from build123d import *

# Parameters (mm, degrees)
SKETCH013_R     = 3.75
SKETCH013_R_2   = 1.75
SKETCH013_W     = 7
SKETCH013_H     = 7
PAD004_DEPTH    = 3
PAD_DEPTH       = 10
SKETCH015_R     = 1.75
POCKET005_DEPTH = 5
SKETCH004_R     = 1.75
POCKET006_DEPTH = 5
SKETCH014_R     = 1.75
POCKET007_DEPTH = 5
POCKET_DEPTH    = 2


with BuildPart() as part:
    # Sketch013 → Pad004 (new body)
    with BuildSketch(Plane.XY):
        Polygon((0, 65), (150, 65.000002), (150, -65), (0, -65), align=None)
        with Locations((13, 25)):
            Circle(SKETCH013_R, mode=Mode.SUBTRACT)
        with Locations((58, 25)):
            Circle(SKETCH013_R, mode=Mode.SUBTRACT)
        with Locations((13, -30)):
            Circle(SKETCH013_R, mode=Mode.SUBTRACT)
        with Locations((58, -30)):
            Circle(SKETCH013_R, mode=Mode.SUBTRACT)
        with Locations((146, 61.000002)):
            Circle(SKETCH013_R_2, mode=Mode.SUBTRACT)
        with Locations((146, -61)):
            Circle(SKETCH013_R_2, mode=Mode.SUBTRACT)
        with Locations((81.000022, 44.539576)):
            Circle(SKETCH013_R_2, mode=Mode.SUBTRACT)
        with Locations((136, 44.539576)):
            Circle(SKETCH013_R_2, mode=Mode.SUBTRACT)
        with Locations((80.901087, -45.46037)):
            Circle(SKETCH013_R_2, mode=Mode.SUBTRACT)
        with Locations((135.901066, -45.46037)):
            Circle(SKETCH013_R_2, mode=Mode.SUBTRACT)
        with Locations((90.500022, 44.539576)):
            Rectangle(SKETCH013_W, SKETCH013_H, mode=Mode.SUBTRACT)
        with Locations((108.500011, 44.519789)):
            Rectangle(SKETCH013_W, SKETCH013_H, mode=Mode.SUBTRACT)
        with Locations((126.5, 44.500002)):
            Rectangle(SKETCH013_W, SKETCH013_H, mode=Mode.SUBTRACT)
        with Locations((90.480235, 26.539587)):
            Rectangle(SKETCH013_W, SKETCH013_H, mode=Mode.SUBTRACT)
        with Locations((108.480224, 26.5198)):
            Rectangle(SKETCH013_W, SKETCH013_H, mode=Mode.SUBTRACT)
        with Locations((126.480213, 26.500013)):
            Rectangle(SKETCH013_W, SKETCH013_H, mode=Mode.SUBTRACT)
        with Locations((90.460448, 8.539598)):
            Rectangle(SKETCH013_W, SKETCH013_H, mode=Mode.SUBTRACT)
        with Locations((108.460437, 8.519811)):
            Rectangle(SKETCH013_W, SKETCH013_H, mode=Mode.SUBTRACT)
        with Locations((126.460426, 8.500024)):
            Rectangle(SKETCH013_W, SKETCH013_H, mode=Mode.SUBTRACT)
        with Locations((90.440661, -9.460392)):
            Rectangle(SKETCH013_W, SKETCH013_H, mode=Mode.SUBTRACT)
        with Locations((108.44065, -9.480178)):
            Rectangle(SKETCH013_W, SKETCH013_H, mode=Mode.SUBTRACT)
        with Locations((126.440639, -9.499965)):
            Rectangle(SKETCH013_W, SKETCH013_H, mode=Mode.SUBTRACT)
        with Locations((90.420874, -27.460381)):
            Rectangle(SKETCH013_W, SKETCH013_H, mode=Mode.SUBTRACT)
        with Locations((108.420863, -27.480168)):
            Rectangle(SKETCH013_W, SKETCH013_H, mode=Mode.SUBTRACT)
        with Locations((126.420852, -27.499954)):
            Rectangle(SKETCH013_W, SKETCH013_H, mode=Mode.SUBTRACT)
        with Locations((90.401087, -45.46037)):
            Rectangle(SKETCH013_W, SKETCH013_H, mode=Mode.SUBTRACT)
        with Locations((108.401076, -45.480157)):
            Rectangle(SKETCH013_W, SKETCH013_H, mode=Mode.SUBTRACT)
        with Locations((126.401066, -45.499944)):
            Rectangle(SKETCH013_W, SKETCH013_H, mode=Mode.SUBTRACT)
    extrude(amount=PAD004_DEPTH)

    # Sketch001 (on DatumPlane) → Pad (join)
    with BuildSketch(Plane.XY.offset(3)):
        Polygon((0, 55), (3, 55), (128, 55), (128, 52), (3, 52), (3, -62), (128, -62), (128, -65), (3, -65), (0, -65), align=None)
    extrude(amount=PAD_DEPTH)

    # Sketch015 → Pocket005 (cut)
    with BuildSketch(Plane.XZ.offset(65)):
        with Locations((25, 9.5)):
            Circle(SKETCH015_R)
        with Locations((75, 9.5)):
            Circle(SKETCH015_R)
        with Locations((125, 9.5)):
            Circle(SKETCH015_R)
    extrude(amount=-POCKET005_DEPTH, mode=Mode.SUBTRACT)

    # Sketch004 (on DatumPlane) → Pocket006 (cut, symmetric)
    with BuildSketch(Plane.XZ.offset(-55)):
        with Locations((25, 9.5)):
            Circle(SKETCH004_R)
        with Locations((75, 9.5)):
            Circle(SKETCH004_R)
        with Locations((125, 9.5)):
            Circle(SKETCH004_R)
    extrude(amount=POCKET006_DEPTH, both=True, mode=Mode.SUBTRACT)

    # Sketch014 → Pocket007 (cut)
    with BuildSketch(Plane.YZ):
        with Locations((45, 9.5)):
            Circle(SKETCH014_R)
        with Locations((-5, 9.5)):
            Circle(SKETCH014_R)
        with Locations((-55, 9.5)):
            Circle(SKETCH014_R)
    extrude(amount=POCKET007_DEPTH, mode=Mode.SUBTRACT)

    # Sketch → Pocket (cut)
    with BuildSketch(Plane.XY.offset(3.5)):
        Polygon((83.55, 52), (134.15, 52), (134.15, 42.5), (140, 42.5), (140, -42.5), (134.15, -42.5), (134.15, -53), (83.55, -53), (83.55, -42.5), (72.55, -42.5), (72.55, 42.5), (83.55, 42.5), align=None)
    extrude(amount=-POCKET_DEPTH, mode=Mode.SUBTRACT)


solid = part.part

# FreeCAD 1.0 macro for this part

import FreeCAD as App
import Part
import Sketcher

doc = App.newDocument("Part")
body = doc.addObject("PartDesign::Body", "Body")

# Sketch on XY plane
sketch1 = doc.addObject("Sketcher::SketchObject", "Sketch")
body.addObject(sketch1)
sketch1.AttachmentSupport = (doc.XY_Plane, [""])
sketch1.MapMode = "FlatFace"
sketch1.addGeometry([
    Part.LineSegment(App.Vector(150, 65.000002, 0), App.Vector(0, 65, 0)),  # 0
    Part.LineSegment(App.Vector(0, 65, 0), App.Vector(0, -65, 0)),  # 1
    Part.LineSegment(App.Vector(0, -65, 0), App.Vector(150, -65, 0)),  # 2
    Part.LineSegment(App.Vector(150, -65, 0), App.Vector(150, 65.000002, 0)),  # 3
    Part.Circle(App.Vector(146, -61, 0), App.Vector(0, 0, 1), 1.75),  # 4
    Part.Circle(App.Vector(135.901066, -45.46037, 0), App.Vector(0, 0, 1), 1.75),  # 5
    Part.LineSegment(App.Vector(122.901066, -48.999944, 0), App.Vector(122.901066, -41.999944, 0)),  # 6
    Part.LineSegment(App.Vector(122.901066, -41.999944, 0), App.Vector(129.901066, -41.999944, 0)),  # 7
    Part.LineSegment(App.Vector(129.901066, -41.999944, 0), App.Vector(129.901066, -48.999944, 0)),  # 8
    Part.LineSegment(App.Vector(129.901066, -48.999944, 0), App.Vector(122.901066, -48.999944, 0)),  # 9
    Part.LineSegment(App.Vector(104.901076, -48.980157, 0), App.Vector(104.901076, -41.980157, 0)),  # 10
    Part.LineSegment(App.Vector(104.901076, -41.980157, 0), App.Vector(111.901076, -41.980157, 0)),  # 11
    Part.LineSegment(App.Vector(111.901076, -41.980157, 0), App.Vector(111.901076, -48.980157, 0)),  # 12
    Part.LineSegment(App.Vector(111.901076, -48.980157, 0), App.Vector(104.901076, -48.980157, 0)),  # 13
    Part.LineSegment(App.Vector(86.901087, -48.96037, 0), App.Vector(86.901087, -41.96037, 0)),  # 14
    Part.LineSegment(App.Vector(86.901087, -41.96037, 0), App.Vector(93.901087, -41.96037, 0)),  # 15
    Part.LineSegment(App.Vector(93.901087, -41.96037, 0), App.Vector(93.901087, -48.96037, 0)),  # 16
    Part.LineSegment(App.Vector(93.901087, -48.96037, 0), App.Vector(86.901087, -48.96037, 0)),  # 17
    Part.Circle(App.Vector(80.901087, -45.46037, 0), App.Vector(0, 0, 1), 1.75),  # 18
    Part.LineSegment(App.Vector(122.920852, -30.999954, 0), App.Vector(122.920852, -23.999954, 0)),  # 19
    Part.LineSegment(App.Vector(122.920852, -23.999954, 0), App.Vector(129.920852, -23.999954, 0)),  # 20
    Part.LineSegment(App.Vector(129.920852, -23.999954, 0), App.Vector(129.920852, -30.999954, 0)),  # 21
    Part.LineSegment(App.Vector(129.920852, -30.999954, 0), App.Vector(122.920852, -30.999954, 0)),  # 22
    Part.LineSegment(App.Vector(122.940639, -12.999965, 0), App.Vector(122.940639, -5.999965, 0)),  # 23
    Part.LineSegment(App.Vector(122.940639, -5.999965, 0), App.Vector(129.940639, -5.999965, 0)),  # 24
    Part.LineSegment(App.Vector(129.940639, -5.999965, 0), App.Vector(129.940639, -12.999965, 0)),  # 25
    Part.LineSegment(App.Vector(129.940639, -12.999965, 0), App.Vector(122.940639, -12.999965, 0)),  # 26
    Part.LineSegment(App.Vector(104.920863, -30.980168, 0), App.Vector(104.920863, -23.980168, 0)),  # 27
    Part.LineSegment(App.Vector(104.920863, -23.980168, 0), App.Vector(111.920863, -23.980168, 0)),  # 28
    Part.LineSegment(App.Vector(111.920863, -23.980168, 0), App.Vector(111.920863, -30.980168, 0)),  # 29
    Part.LineSegment(App.Vector(111.920863, -30.980168, 0), App.Vector(104.920863, -30.980168, 0)),  # 30
    Part.LineSegment(App.Vector(86.920874, -30.960381, 0), App.Vector(86.920874, -23.960381, 0)),  # 31
    Part.LineSegment(App.Vector(86.920874, -23.960381, 0), App.Vector(93.920874, -23.960381, 0)),  # 32
    Part.LineSegment(App.Vector(93.920874, -23.960381, 0), App.Vector(93.920874, -30.960381, 0)),  # 33
    Part.LineSegment(App.Vector(93.920874, -30.960381, 0), App.Vector(86.920874, -30.960381, 0)),  # 34
    Part.LineSegment(App.Vector(104.94065, -12.980178, 0), App.Vector(104.94065, -5.980178, 0)),  # 35
    Part.LineSegment(App.Vector(104.94065, -5.980178, 0), App.Vector(111.94065, -5.980178, 0)),  # 36
    Part.LineSegment(App.Vector(111.94065, -5.980178, 0), App.Vector(111.94065, -12.980178, 0)),  # 37
    Part.LineSegment(App.Vector(111.94065, -12.980178, 0), App.Vector(104.94065, -12.980178, 0)),  # 38
    Part.LineSegment(App.Vector(86.940661, -12.960392, 0), App.Vector(86.940661, -5.960392, 0)),  # 39
    Part.LineSegment(App.Vector(86.940661, -5.960392, 0), App.Vector(93.940661, -5.960392, 0)),  # 40
    Part.LineSegment(App.Vector(93.940661, -5.960392, 0), App.Vector(93.940661, -12.960392, 0)),  # 41
    Part.LineSegment(App.Vector(93.940661, -12.960392, 0), App.Vector(86.940661, -12.960392, 0)),  # 42
    Part.Circle(App.Vector(58, -30, 0), App.Vector(0, 0, 1), 3.75),  # 43
    Part.Circle(App.Vector(13, -30, 0), App.Vector(0, 0, 1), 3.75),  # 44
    Part.LineSegment(App.Vector(122.960426, 5.000024, 0), App.Vector(122.960426, 12.000024, 0)),  # 45
    Part.LineSegment(App.Vector(122.960426, 12.000024, 0), App.Vector(129.960426, 12.000024, 0)),  # 46
    Part.LineSegment(App.Vector(129.960426, 12.000024, 0), App.Vector(129.960426, 5.000024, 0)),  # 47
    Part.LineSegment(App.Vector(129.960426, 5.000024, 0), App.Vector(122.960426, 5.000024, 0)),  # 48
    Part.LineSegment(App.Vector(122.980213, 23.000013, 0), App.Vector(122.980213, 30.000013, 0)),  # 49
    Part.LineSegment(App.Vector(122.980213, 30.000013, 0), App.Vector(129.980213, 30.000013, 0)),  # 50
    Part.LineSegment(App.Vector(129.980213, 30.000013, 0), App.Vector(129.980213, 23.000013, 0)),  # 51
    Part.LineSegment(App.Vector(129.980213, 23.000013, 0), App.Vector(122.980213, 23.000013, 0)),  # 52
    Part.LineSegment(App.Vector(104.960437, 5.019811, 0), App.Vector(104.960437, 12.019811, 0)),  # 53
    Part.LineSegment(App.Vector(104.960437, 12.019811, 0), App.Vector(111.960437, 12.019811, 0)),  # 54
    Part.LineSegment(App.Vector(111.960437, 12.019811, 0), App.Vector(111.960437, 5.019811, 0)),  # 55
    Part.LineSegment(App.Vector(111.960437, 5.019811, 0), App.Vector(104.960437, 5.019811, 0)),  # 56
    Part.LineSegment(App.Vector(86.960448, 5.039598, 0), App.Vector(86.960448, 12.039598, 0)),  # 57
    Part.LineSegment(App.Vector(86.960448, 12.039598, 0), App.Vector(93.960448, 12.039598, 0)),  # 58
    Part.LineSegment(App.Vector(93.960448, 12.039598, 0), App.Vector(93.960448, 5.039598, 0)),  # 59
    Part.LineSegment(App.Vector(93.960448, 5.039598, 0), App.Vector(86.960448, 5.039598, 0)),  # 60
    Part.LineSegment(App.Vector(104.980224, 23.0198, 0), App.Vector(104.980224, 30.0198, 0)),  # 61
    Part.LineSegment(App.Vector(104.980224, 30.0198, 0), App.Vector(111.980224, 30.0198, 0)),  # 62
    Part.LineSegment(App.Vector(111.980224, 30.0198, 0), App.Vector(111.980224, 23.0198, 0)),  # 63
    Part.LineSegment(App.Vector(111.980224, 23.0198, 0), App.Vector(104.980224, 23.0198, 0)),  # 64
    Part.LineSegment(App.Vector(86.980235, 23.039587, 0), App.Vector(86.980235, 30.039587, 0)),  # 65
    Part.LineSegment(App.Vector(86.980235, 30.039587, 0), App.Vector(93.980235, 30.039587, 0)),  # 66
    Part.LineSegment(App.Vector(93.980235, 30.039587, 0), App.Vector(93.980235, 23.039587, 0)),  # 67
    Part.LineSegment(App.Vector(93.980235, 23.039587, 0), App.Vector(86.980235, 23.039587, 0)),  # 68
    Part.Circle(App.Vector(136, 44.539576, 0), App.Vector(0, 0, 1), 1.75),  # 69
    Part.LineSegment(App.Vector(123, 41.000002, 0), App.Vector(123, 48.000002, 0)),  # 70
    Part.LineSegment(App.Vector(123, 48.000002, 0), App.Vector(130, 48.000002, 0)),  # 71
    Part.LineSegment(App.Vector(130, 48.000002, 0), App.Vector(130, 41.000002, 0)),  # 72
    Part.LineSegment(App.Vector(130, 41.000002, 0), App.Vector(123, 41.000002, 0)),  # 73
    Part.Circle(App.Vector(146, 61.000002, 0), App.Vector(0, 0, 1), 1.75),  # 74
    Part.LineSegment(App.Vector(105.000011, 41.019789, 0), App.Vector(105.000011, 48.019789, 0)),  # 75
    Part.LineSegment(App.Vector(105.000011, 48.019789, 0), App.Vector(112.000011, 48.019789, 0)),  # 76
    Part.LineSegment(App.Vector(112.000011, 48.019789, 0), App.Vector(112.000011, 41.019789, 0)),  # 77
    Part.LineSegment(App.Vector(112.000011, 41.019789, 0), App.Vector(105.000011, 41.019789, 0)),  # 78
    Part.LineSegment(App.Vector(87.000022, 41.039576, 0), App.Vector(87.000022, 48.039576, 0)),  # 79
    Part.LineSegment(App.Vector(87.000022, 48.039576, 0), App.Vector(94.000022, 48.039576, 0)),  # 80
    Part.LineSegment(App.Vector(94.000022, 48.039576, 0), App.Vector(94.000022, 41.039576, 0)),  # 81
    Part.LineSegment(App.Vector(94.000022, 41.039576, 0), App.Vector(87.000022, 41.039576, 0)),  # 82
    Part.Circle(App.Vector(81.000022, 44.539576, 0), App.Vector(0, 0, 1), 1.75),  # 83
    Part.Circle(App.Vector(58, 25, 0), App.Vector(0, 0, 1), 3.75),  # 84
    Part.Circle(App.Vector(13, 25, 0), App.Vector(0, 0, 1), 3.75),  # 85
], False)
sketch1.addConstraint([
    Sketcher.Constraint("Coincident", 0, 2, 1, 1),
    Sketcher.Constraint("Coincident", 1, 2, 2, 1),
    Sketcher.Constraint("Coincident", 2, 2, 3, 1),
    Sketcher.Constraint("Coincident", 3, 2, 0, 1),
    Sketcher.Constraint("Coincident", 6, 2, 7, 1),
    Sketcher.Constraint("Coincident", 7, 2, 8, 1),
    Sketcher.Constraint("Coincident", 8, 2, 9, 1),
    Sketcher.Constraint("Coincident", 9, 2, 6, 1),
    Sketcher.Constraint("Coincident", 10, 2, 11, 1),
    Sketcher.Constraint("Coincident", 11, 2, 12, 1),
    Sketcher.Constraint("Coincident", 12, 2, 13, 1),
    Sketcher.Constraint("Coincident", 13, 2, 10, 1),
    Sketcher.Constraint("Coincident", 14, 2, 15, 1),
    Sketcher.Constraint("Coincident", 15, 2, 16, 1),
    Sketcher.Constraint("Coincident", 16, 2, 17, 1),
    Sketcher.Constraint("Coincident", 17, 2, 14, 1),
    Sketcher.Constraint("Coincident", 19, 2, 20, 1),
    Sketcher.Constraint("Coincident", 20, 2, 21, 1),
    Sketcher.Constraint("Coincident", 21, 2, 22, 1),
    Sketcher.Constraint("Coincident", 22, 2, 19, 1),
    Sketcher.Constraint("Coincident", 23, 2, 24, 1),
    Sketcher.Constraint("Coincident", 24, 2, 25, 1),
    Sketcher.Constraint("Coincident", 25, 2, 26, 1),
    Sketcher.Constraint("Coincident", 26, 2, 23, 1),
    Sketcher.Constraint("Coincident", 27, 2, 28, 1),
    Sketcher.Constraint("Coincident", 28, 2, 29, 1),
    Sketcher.Constraint("Coincident", 29, 2, 30, 1),
    Sketcher.Constraint("Coincident", 30, 2, 27, 1),
    Sketcher.Constraint("Coincident", 31, 2, 32, 1),
    Sketcher.Constraint("Coincident", 32, 2, 33, 1),
    Sketcher.Constraint("Coincident", 33, 2, 34, 1),
    Sketcher.Constraint("Coincident", 34, 2, 31, 1),
    Sketcher.Constraint("Coincident", 35, 2, 36, 1),
    Sketcher.Constraint("Coincident", 36, 2, 37, 1),
    Sketcher.Constraint("Coincident", 37, 2, 38, 1),
    Sketcher.Constraint("Coincident", 38, 2, 35, 1),
    Sketcher.Constraint("Coincident", 39, 2, 40, 1),
    Sketcher.Constraint("Coincident", 40, 2, 41, 1),
    Sketcher.Constraint("Coincident", 41, 2, 42, 1),
    Sketcher.Constraint("Coincident", 42, 2, 39, 1),
    Sketcher.Constraint("Coincident", 45, 2, 46, 1),
    Sketcher.Constraint("Coincident", 46, 2, 47, 1),
    Sketcher.Constraint("Coincident", 47, 2, 48, 1),
    Sketcher.Constraint("Coincident", 48, 2, 45, 1),
    Sketcher.Constraint("Coincident", 49, 2, 50, 1),
    Sketcher.Constraint("Coincident", 50, 2, 51, 1),
    Sketcher.Constraint("Coincident", 51, 2, 52, 1),
    Sketcher.Constraint("Coincident", 52, 2, 49, 1),
    Sketcher.Constraint("Coincident", 53, 2, 54, 1),
    Sketcher.Constraint("Coincident", 54, 2, 55, 1),
    Sketcher.Constraint("Coincident", 55, 2, 56, 1),
    Sketcher.Constraint("Coincident", 56, 2, 53, 1),
    Sketcher.Constraint("Coincident", 57, 2, 58, 1),
    Sketcher.Constraint("Coincident", 58, 2, 59, 1),
    Sketcher.Constraint("Coincident", 59, 2, 60, 1),
    Sketcher.Constraint("Coincident", 60, 2, 57, 1),
    Sketcher.Constraint("Coincident", 61, 2, 62, 1),
    Sketcher.Constraint("Coincident", 62, 2, 63, 1),
    Sketcher.Constraint("Coincident", 63, 2, 64, 1),
    Sketcher.Constraint("Coincident", 64, 2, 61, 1),
    Sketcher.Constraint("Coincident", 65, 2, 66, 1),
    Sketcher.Constraint("Coincident", 66, 2, 67, 1),
    Sketcher.Constraint("Coincident", 67, 2, 68, 1),
    Sketcher.Constraint("Coincident", 68, 2, 65, 1),
    Sketcher.Constraint("Coincident", 70, 2, 71, 1),
    Sketcher.Constraint("Coincident", 71, 2, 72, 1),
    Sketcher.Constraint("Coincident", 72, 2, 73, 1),
    Sketcher.Constraint("Coincident", 73, 2, 70, 1),
    Sketcher.Constraint("Coincident", 75, 2, 76, 1),
    Sketcher.Constraint("Coincident", 76, 2, 77, 1),
    Sketcher.Constraint("Coincident", 77, 2, 78, 1),
    Sketcher.Constraint("Coincident", 78, 2, 75, 1),
    Sketcher.Constraint("Coincident", 79, 2, 80, 1),
    Sketcher.Constraint("Coincident", 80, 2, 81, 1),
    Sketcher.Constraint("Coincident", 81, 2, 82, 1),
    Sketcher.Constraint("Coincident", 82, 2, 79, 1),
    Sketcher.Constraint("Horizontal", 0),
    Sketcher.Constraint("Vertical", 1),
    Sketcher.Constraint("Horizontal", 2),
    Sketcher.Constraint("Vertical", 3),
    Sketcher.Constraint("Vertical", 6),
    Sketcher.Constraint("Horizontal", 7),
    Sketcher.Constraint("Vertical", 8),
    Sketcher.Constraint("Horizontal", 9),
    Sketcher.Constraint("Vertical", 10),
    Sketcher.Constraint("Horizontal", 11),
    Sketcher.Constraint("Vertical", 12),
    Sketcher.Constraint("Horizontal", 13),
    Sketcher.Constraint("Vertical", 14),
    Sketcher.Constraint("Horizontal", 15),
    Sketcher.Constraint("Vertical", 16),
    Sketcher.Constraint("Horizontal", 17),
    Sketcher.Constraint("Vertical", 19),
    Sketcher.Constraint("Horizontal", 20),
    Sketcher.Constraint("Vertical", 21),
    Sketcher.Constraint("Horizontal", 22),
    Sketcher.Constraint("Vertical", 23),
    Sketcher.Constraint("Horizontal", 24),
    Sketcher.Constraint("Vertical", 25),
    Sketcher.Constraint("Horizontal", 26),
    Sketcher.Constraint("Vertical", 27),
    Sketcher.Constraint("Horizontal", 28),
    Sketcher.Constraint("Vertical", 29),
    Sketcher.Constraint("Horizontal", 30),
    Sketcher.Constraint("Vertical", 31),
    Sketcher.Constraint("Horizontal", 32),
    Sketcher.Constraint("Vertical", 33),
    Sketcher.Constraint("Horizontal", 34),
    Sketcher.Constraint("Vertical", 35),
    Sketcher.Constraint("Horizontal", 36),
    Sketcher.Constraint("Vertical", 37),
    Sketcher.Constraint("Horizontal", 38),
    Sketcher.Constraint("Vertical", 39),
    Sketcher.Constraint("Horizontal", 40),
    Sketcher.Constraint("Vertical", 41),
    Sketcher.Constraint("Horizontal", 42),
    Sketcher.Constraint("Vertical", 45),
    Sketcher.Constraint("Horizontal", 46),
    Sketcher.Constraint("Vertical", 47),
    Sketcher.Constraint("Horizontal", 48),
    Sketcher.Constraint("Vertical", 49),
    Sketcher.Constraint("Horizontal", 50),
    Sketcher.Constraint("Vertical", 51),
    Sketcher.Constraint("Horizontal", 52),
    Sketcher.Constraint("Vertical", 53),
    Sketcher.Constraint("Horizontal", 54),
    Sketcher.Constraint("Vertical", 55),
    Sketcher.Constraint("Horizontal", 56),
    Sketcher.Constraint("Vertical", 57),
    Sketcher.Constraint("Horizontal", 58),
    Sketcher.Constraint("Vertical", 59),
    Sketcher.Constraint("Horizontal", 60),
    Sketcher.Constraint("Vertical", 61),
    Sketcher.Constraint("Horizontal", 62),
    Sketcher.Constraint("Vertical", 63),
    Sketcher.Constraint("Horizontal", 64),
    Sketcher.Constraint("Vertical", 65),
    Sketcher.Constraint("Horizontal", 66),
    Sketcher.Constraint("Vertical", 67),
    Sketcher.Constraint("Horizontal", 68),
    Sketcher.Constraint("Vertical", 70),
    Sketcher.Constraint("Horizontal", 71),
    Sketcher.Constraint("Vertical", 72),
    Sketcher.Constraint("Horizontal", 73),
    Sketcher.Constraint("Vertical", 75),
    Sketcher.Constraint("Horizontal", 76),
    Sketcher.Constraint("Vertical", 77),
    Sketcher.Constraint("Horizontal", 78),
    Sketcher.Constraint("Vertical", 79),
    Sketcher.Constraint("Horizontal", 80),
    Sketcher.Constraint("Vertical", 81),
    Sketcher.Constraint("Horizontal", 82),
    Sketcher.Constraint("Equal", 4, 5),
    Sketcher.Constraint("Equal", 5, 18),
    Sketcher.Constraint("Equal", 43, 44),
    Sketcher.Constraint("Equal", 18, 69),
    Sketcher.Constraint("Equal", 69, 74),
    Sketcher.Constraint("Equal", 74, 83),
    Sketcher.Constraint("Equal", 44, 84),
    Sketcher.Constraint("Equal", 84, 85),
    Sketcher.Constraint("Symmetric", 0, 2, 1, 2, -1, 1),
    Sketcher.Constraint("Symmetric", 4, 3, 74, 3, -1),
    Sketcher.Constraint("Horizontal", 5, 3, 18, 3),
    Sketcher.Constraint("Horizontal", 43, 3, 44, 3),
    Sketcher.Constraint("Horizontal", 69, 3, 83, 3),
    Sketcher.Constraint("Horizontal", 84, 3, 85, 3),
    Sketcher.Constraint("Vertical", 43, 3, 84, 3),
    Sketcher.Constraint("Vertical", 44, 3, 85, 3),
    Sketcher.Constraint("Equal", 9, 11),
    Sketcher.Constraint("Equal", 13, 15),
    Sketcher.Constraint("Equal", 17, 20),
    Sketcher.Constraint("Equal", 22, 24),
    Sketcher.Constraint("Equal", 26, 28),
    Sketcher.Constraint("Equal", 30, 32),
    Sketcher.Constraint("Equal", 34, 36),
    Sketcher.Constraint("Equal", 38, 40),
    Sketcher.Constraint("Equal", 42, 46),
    Sketcher.Constraint("Equal", 48, 50),
    Sketcher.Constraint("Equal", 52, 54),
    Sketcher.Constraint("Equal", 56, 58),
    Sketcher.Constraint("Equal", 60, 62),
    Sketcher.Constraint("Equal", 64, 66),
    Sketcher.Constraint("Equal", 68, 71),
    Sketcher.Constraint("Equal", 73, 76),
    Sketcher.Constraint("Equal", 78, 80),
    Sketcher.Constraint("Equal", 82, 6),
    Sketcher.Constraint("Equal", 8, 10),
    Sketcher.Constraint("Equal", 12, 14),
    Sketcher.Constraint("Equal", 16, 19),
    Sketcher.Constraint("Equal", 21, 23),
    Sketcher.Constraint("Equal", 25, 27),
    Sketcher.Constraint("Equal", 29, 31),
    Sketcher.Constraint("Equal", 33, 35),
    Sketcher.Constraint("Equal", 37, 39),
    Sketcher.Constraint("Equal", 41, 45),
    Sketcher.Constraint("Equal", 47, 49),
    Sketcher.Constraint("Equal", 51, 53),
    Sketcher.Constraint("Equal", 55, 57),
    Sketcher.Constraint("Equal", 59, 61),
    Sketcher.Constraint("Equal", 63, 65),
    Sketcher.Constraint("Equal", 67, 70),
    Sketcher.Constraint("Equal", 72, 75),
    Sketcher.Constraint("Equal", 77, 79),
    Sketcher.Constraint("Diameter", 4, 3.5),
    Sketcher.Constraint("Diameter", 43, 7.5),
    Sketcher.Constraint("DistanceX", 0, 2, 0, 1, 150.0),
    Sketcher.Constraint("DistanceX", 7, 1, 7, 2, 7.0),
    Sketcher.Constraint("DistanceY", 1, 2, 1, 1, 130.0),
    Sketcher.Constraint("DistanceX", -1, 1, 4, 3, 146.0),
    Sketcher.Constraint("DistanceY", 4, 3, -1, 1, 61.0),
    Sketcher.Constraint("DistanceX", -1, 1, 43, 3, 58.0),
    Sketcher.Constraint("DistanceY", 43, 3, -1, 1, 30.0),
    Sketcher.Constraint("DistanceX", -1, 1, 44, 3, 13.0),
    Sketcher.Constraint("DistanceX", -1, 1, 69, 3, 136.0),
    Sketcher.Constraint("DistanceY", -1, 1, 84, 3, 25.0),
    Sketcher.Constraint("DistanceX", -1, 1, 70, 2, 123.0),
    Sketcher.Constraint("DistanceY", -1, 1, 61, 2, 30.0198),
    Sketcher.Constraint("DistanceY", 5, 3, -1, 1, 45.46037),
    Sketcher.Constraint("DistanceX", -1, 1, 83, 3, 81.000022),
    Sketcher.Constraint("DistanceY", 14, 2, -1, 1, 41.96037),
    Sketcher.Constraint("DistanceX", -1, 1, 19, 2, 122.920852),
    Sketcher.Constraint("DistanceX", -1, 1, 23, 2, 122.940639),
    Sketcher.Constraint("DistanceY", 31, 2, -1, 1, 23.960381),
    Sketcher.Constraint("DistanceX", -1, 1, 35, 2, 104.94065),
    Sketcher.Constraint("DistanceY", 35, 2, -1, 1, 5.980178),
    Sketcher.Constraint("DistanceX", -1, 1, 39, 2, 86.940661),
    Sketcher.Constraint("DistanceY", 39, 2, -1, 1, 5.960392),
    Sketcher.Constraint("DistanceY", -1, 1, 53, 2, 12.019811),
    Sketcher.Constraint("DistanceX", -1, 1, 57, 2, 86.960448),
    Sketcher.Constraint("DistanceX", -1, 1, 75, 2, 105.000011),
    Sketcher.Constraint("DistanceY", -1, 1, 75, 2, 48.019789),
    Sketcher.Constraint("DistanceX", -1, 1, 79, 2, 87.000022),
    Sketcher.Constraint("DistanceX", -1, 1, 5, 3, 135.901066),
    Sketcher.Constraint("DistanceX", -1, 1, 18, 3, 80.901087),
    Sketcher.Constraint("DistanceY", -1, 1, 69, 3, 44.539576),
    Sketcher.Constraint("DistanceX", -1, 1, 6, 2, 122.901066),
    Sketcher.Constraint("DistanceY", 6, 2, -1, 1, 41.999944),
    Sketcher.Constraint("DistanceX", -1, 1, 10, 2, 104.901076),
    Sketcher.Constraint("DistanceY", 10, 2, -1, 1, 41.980157),
    Sketcher.Constraint("DistanceX", -1, 1, 14, 2, 86.901087),
    Sketcher.Constraint("DistanceY", 19, 2, -1, 1, 23.999954),
    Sketcher.Constraint("DistanceY", 23, 2, -1, 1, 5.999965),
    Sketcher.Constraint("DistanceX", -1, 1, 27, 2, 104.920863),
    Sketcher.Constraint("DistanceY", 27, 2, -1, 1, 23.980168),
    Sketcher.Constraint("DistanceX", -1, 1, 31, 2, 86.920874),
    Sketcher.Constraint("DistanceX", -1, 1, 45, 2, 122.960426),
    Sketcher.Constraint("DistanceY", -1, 1, 45, 2, 12.000024),
    Sketcher.Constraint("DistanceX", -1, 1, 49, 2, 122.980213),
    Sketcher.Constraint("DistanceY", -1, 1, 49, 2, 30.000013),
    Sketcher.Constraint("DistanceX", -1, 1, 53, 2, 104.960437),
    Sketcher.Constraint("DistanceY", -1, 1, 57, 2, 12.039598),
    Sketcher.Constraint("DistanceX", -1, 1, 61, 2, 104.980224),
    Sketcher.Constraint("DistanceX", -1, 1, 65, 2, 86.980235),
    Sketcher.Constraint("DistanceY", -1, 1, 65, 2, 30.039587),
    Sketcher.Constraint("DistanceY", -1, 1, 70, 2, 48.000002),
    Sketcher.Constraint("DistanceY", -1, 1, 79, 2, 48.039576),
])
pad1 = doc.addObject("PartDesign::Pad", "Pad")
body.addObject(pad1)
pad1.Profile = sketch1
pad1.Length = 3

# Sketch on XY plane
sketch2 = doc.addObject("Sketcher::SketchObject", "Sketch001")
body.addObject(sketch2)
sketch2.AttachmentSupport = (doc.XY_Plane, [""])
sketch2.MapMode = "FlatFace"
sketch2.AttachmentOffset = App.Placement(App.Vector(0, 0, 3), App.Rotation())
sketch2.addGeometry([
    Part.LineSegment(App.Vector(128, 55, 0), App.Vector(0, 55, 0)),  # 0
    Part.LineSegment(App.Vector(0, 55, 0), App.Vector(0, -65, 0)),  # 1
    Part.LineSegment(App.Vector(0, -65, 0), App.Vector(128, -65, 0)),  # 2
    Part.LineSegment(App.Vector(128, -65, 0), App.Vector(128, -62, 0)),  # 3
    Part.LineSegment(App.Vector(128, -62, 0), App.Vector(3, -62, 0)),  # 4
    Part.LineSegment(App.Vector(3, -62, 0), App.Vector(3, 52, 0)),  # 5
    Part.LineSegment(App.Vector(3, 52, 0), App.Vector(128, 52, 0)),  # 6
    Part.LineSegment(App.Vector(128, 52, 0), App.Vector(128, 55, 0)),  # 7
], False)
sketch2.addConstraint([
    Sketcher.Constraint("Coincident", 0, 2, 1, 1),
    Sketcher.Constraint("Coincident", 1, 2, 2, 1),
    Sketcher.Constraint("Coincident", 2, 2, 3, 1),
    Sketcher.Constraint("Coincident", 3, 2, 4, 1),
    Sketcher.Constraint("Coincident", 4, 2, 5, 1),
    Sketcher.Constraint("Coincident", 5, 2, 6, 1),
    Sketcher.Constraint("Coincident", 6, 2, 7, 1),
    Sketcher.Constraint("Coincident", 7, 2, 0, 1),
    Sketcher.Constraint("Horizontal", 0),
    Sketcher.Constraint("Vertical", 1),
    Sketcher.Constraint("Horizontal", 2),
    Sketcher.Constraint("Vertical", 3),
    Sketcher.Constraint("Horizontal", 4),
    Sketcher.Constraint("Vertical", 5),
    Sketcher.Constraint("Horizontal", 6),
    Sketcher.Constraint("Vertical", 7),
    Sketcher.Constraint("PointOnObject", 0, 2, -2),
    Sketcher.Constraint("Vertical", 3, 2, 6, 2),
    Sketcher.Constraint("Equal", 3, 7),
    Sketcher.Constraint("DistanceX", 0, 2, 0, 1, 128.0),
    Sketcher.Constraint("DistanceX", 4, 2, 4, 1, 125.0),
    Sketcher.Constraint("DistanceY", 1, 2, 1, 1, 120.0),
    Sketcher.Constraint("DistanceY", 3, 1, 3, 2, 3.0),
    Sketcher.Constraint("DistanceY", -1, 1, 0, 2, 55.0),
])
pad2 = doc.addObject("PartDesign::Pad", "Pad001")
body.addObject(pad2)
pad2.Profile = sketch2
pad2.Length = 10

# Sketch on XZ plane
sketch3 = doc.addObject("Sketcher::SketchObject", "Sketch002")
body.addObject(sketch3)
sketch3.AttachmentSupport = (doc.XZ_Plane, [""])
sketch3.MapMode = "FlatFace"
sketch3.AttachmentOffset = App.Placement(App.Vector(0, 0, 65), App.Rotation())
sketch3.addGeometry([
    Part.Circle(App.Vector(25, 9.5, 0), App.Vector(0, 0, 1), 1.75),
    Part.Circle(App.Vector(75, 9.5, 0), App.Vector(0, 0, 1), 1.75),
    Part.Circle(App.Vector(125, 9.5, 0), App.Vector(0, 0, 1), 1.75),
], False)
sketch3.addConstraint([
    Sketcher.Constraint("Equal", 0, 1),
    Sketcher.Constraint("Equal", 1, 2),
    Sketcher.Constraint("Horizontal", 0, 3, 1, 3),
    Sketcher.Constraint("Horizontal", 1, 3, 2, 3),
    Sketcher.Constraint("Diameter", 0, 3.5),
    Sketcher.Constraint("DistanceX", -1, 1, 0, 3, 25.0),
    Sketcher.Constraint("DistanceX", -1, 1, 1, 3, 75.0),
    Sketcher.Constraint("DistanceX", -1, 1, 2, 3, 125.0),
    Sketcher.Constraint("DistanceY", -1, 1, 0, 3, 9.5),
])
pocket1 = doc.addObject("PartDesign::Pocket", "Pocket")
body.addObject(pocket1)
pocket1.Profile = sketch3
pocket1.Length = 5

# Sketch on XZ plane
sketch4 = doc.addObject("Sketcher::SketchObject", "Sketch003")
body.addObject(sketch4)
sketch4.AttachmentSupport = (doc.XZ_Plane, [""])
sketch4.MapMode = "FlatFace"
sketch4.AttachmentOffset = App.Placement(App.Vector(0, 0, -55), App.Rotation())
sketch4.addGeometry([
    Part.Circle(App.Vector(25, 9.5, 0), App.Vector(0, 0, 1), 1.75),
    Part.Circle(App.Vector(75, 9.5, 0), App.Vector(0, 0, 1), 1.75),
    Part.Circle(App.Vector(125, 9.5, 0), App.Vector(0, 0, 1), 1.75),
], False)
sketch4.addConstraint([
    Sketcher.Constraint("Equal", 0, 1),
    Sketcher.Constraint("Equal", 1, 2),
    Sketcher.Constraint("Horizontal", 0, 3, 1, 3),
    Sketcher.Constraint("Horizontal", 1, 3, 2, 3),
    Sketcher.Constraint("Diameter", 0, 3.5),
    Sketcher.Constraint("DistanceX", -1, 1, 0, 3, 25.0),
    Sketcher.Constraint("DistanceX", -1, 1, 1, 3, 75.0),
    Sketcher.Constraint("DistanceX", -1, 1, 2, 3, 125.0),
    Sketcher.Constraint("DistanceY", -1, 1, 0, 3, 9.5),
])
pocket2 = doc.addObject("PartDesign::Pocket", "Pocket001")
body.addObject(pocket2)
pocket2.Profile = sketch4
pocket2.Length = 10
pocket2.Midplane = True

# Sketch on YZ plane
sketch5 = doc.addObject("Sketcher::SketchObject", "Sketch004")
body.addObject(sketch5)
sketch5.AttachmentSupport = (doc.YZ_Plane, [""])
sketch5.MapMode = "FlatFace"
sketch5.addGeometry([
    Part.Circle(App.Vector(45, 9.5, 0), App.Vector(0, 0, 1), 1.75),
    Part.Circle(App.Vector(-5, 9.5, 0), App.Vector(0, 0, 1), 1.75),
    Part.Circle(App.Vector(-55, 9.5, 0), App.Vector(0, 0, 1), 1.75),
], False)
sketch5.addConstraint([
    Sketcher.Constraint("Equal", 0, 1),
    Sketcher.Constraint("Equal", 1, 2),
    Sketcher.Constraint("Horizontal", 0, 3, 1, 3),
    Sketcher.Constraint("Horizontal", 1, 3, 2, 3),
    Sketcher.Constraint("Diameter", 0, 3.5),
    Sketcher.Constraint("DistanceX", -1, 1, 0, 3, 45.0),
    Sketcher.Constraint("DistanceX", 1, 3, -1, 1, 5.0),
    Sketcher.Constraint("DistanceX", 2, 3, -1, 1, 55.0),
    Sketcher.Constraint("DistanceY", -1, 1, 0, 3, 9.5),
])
pocket3 = doc.addObject("PartDesign::Pocket", "Pocket002")
body.addObject(pocket3)
pocket3.Profile = sketch5
pocket3.Length = 5
pocket3.Reversed = True

# Sketch on XY plane
sketch6 = doc.addObject("Sketcher::SketchObject", "Sketch005")
body.addObject(sketch6)
sketch6.AttachmentSupport = (doc.XY_Plane, [""])
sketch6.MapMode = "FlatFace"
sketch6.AttachmentOffset = App.Placement(App.Vector(0, 0, 3.5), App.Rotation())
sketch6.addGeometry([
    Part.LineSegment(App.Vector(134.15, 52, 0), App.Vector(83.55, 52, 0)),  # 0
    Part.LineSegment(App.Vector(83.55, 52, 0), App.Vector(83.55, 42.5, 0)),  # 1
    Part.LineSegment(App.Vector(83.55, 42.5, 0), App.Vector(72.55, 42.5, 0)),  # 2
    Part.LineSegment(App.Vector(72.55, 42.5, 0), App.Vector(72.55, -42.5, 0)),  # 3
    Part.LineSegment(App.Vector(72.55, -42.5, 0), App.Vector(83.55, -42.5, 0)),  # 4
    Part.LineSegment(App.Vector(83.55, -42.5, 0), App.Vector(83.55, -53, 0)),  # 5
    Part.LineSegment(App.Vector(83.55, -53, 0), App.Vector(134.15, -53, 0)),  # 6
    Part.LineSegment(App.Vector(134.15, -53, 0), App.Vector(134.15, -42.5, 0)),  # 7
    Part.LineSegment(App.Vector(134.15, -42.5, 0), App.Vector(140, -42.5, 0)),  # 8
    Part.LineSegment(App.Vector(140, -42.5, 0), App.Vector(140, 42.5, 0)),  # 9
    Part.LineSegment(App.Vector(140, 42.5, 0), App.Vector(134.15, 42.5, 0)),  # 10
    Part.LineSegment(App.Vector(134.15, 42.5, 0), App.Vector(134.15, 52, 0)),  # 11
], False)
sketch6.addConstraint([
    Sketcher.Constraint("Coincident", 0, 2, 1, 1),
    Sketcher.Constraint("Coincident", 1, 2, 2, 1),
    Sketcher.Constraint("Coincident", 2, 2, 3, 1),
    Sketcher.Constraint("Coincident", 3, 2, 4, 1),
    Sketcher.Constraint("Coincident", 4, 2, 5, 1),
    Sketcher.Constraint("Coincident", 5, 2, 6, 1),
    Sketcher.Constraint("Coincident", 6, 2, 7, 1),
    Sketcher.Constraint("Coincident", 7, 2, 8, 1),
    Sketcher.Constraint("Coincident", 8, 2, 9, 1),
    Sketcher.Constraint("Coincident", 9, 2, 10, 1),
    Sketcher.Constraint("Coincident", 10, 2, 11, 1),
    Sketcher.Constraint("Coincident", 11, 2, 0, 1),
    Sketcher.Constraint("Horizontal", 0),
    Sketcher.Constraint("Vertical", 1),
    Sketcher.Constraint("Horizontal", 2),
    Sketcher.Constraint("Vertical", 3),
    Sketcher.Constraint("Horizontal", 4),
    Sketcher.Constraint("Vertical", 5),
    Sketcher.Constraint("Horizontal", 6),
    Sketcher.Constraint("Vertical", 7),
    Sketcher.Constraint("Horizontal", 8),
    Sketcher.Constraint("Vertical", 9),
    Sketcher.Constraint("Horizontal", 10),
    Sketcher.Constraint("Vertical", 11),
    Sketcher.Constraint("Symmetric", 1, 2, 4, 2, -1),
    Sketcher.Constraint("Symmetric", 7, 2, 10, 2, -1),
    Sketcher.Constraint("Horizontal", 4, 2, 7, 2),
    Sketcher.Constraint("DistanceX", 2, 2, 2, 1, 11.0),
    Sketcher.Constraint("DistanceY", 3, 2, 3, 1, 85.0),
    Sketcher.Constraint("DistanceX", 0, 2, 0, 1, 50.6),
    Sketcher.Constraint("DistanceY", 1, 2, 1, 1, 9.5),
    Sketcher.Constraint("DistanceY", 5, 2, 5, 1, 10.5),
    Sketcher.Constraint("DistanceX", -1, 1, 8, 2, 140.0),
    Sketcher.Constraint("DistanceX", 8, 1, 8, 2, 5.85),
])
pocket4 = doc.addObject("PartDesign::Pocket", "Pocket003")
body.addObject(pocket4)
pocket4.Profile = sketch6
pocket4.Length = 2

doc.recompute()
